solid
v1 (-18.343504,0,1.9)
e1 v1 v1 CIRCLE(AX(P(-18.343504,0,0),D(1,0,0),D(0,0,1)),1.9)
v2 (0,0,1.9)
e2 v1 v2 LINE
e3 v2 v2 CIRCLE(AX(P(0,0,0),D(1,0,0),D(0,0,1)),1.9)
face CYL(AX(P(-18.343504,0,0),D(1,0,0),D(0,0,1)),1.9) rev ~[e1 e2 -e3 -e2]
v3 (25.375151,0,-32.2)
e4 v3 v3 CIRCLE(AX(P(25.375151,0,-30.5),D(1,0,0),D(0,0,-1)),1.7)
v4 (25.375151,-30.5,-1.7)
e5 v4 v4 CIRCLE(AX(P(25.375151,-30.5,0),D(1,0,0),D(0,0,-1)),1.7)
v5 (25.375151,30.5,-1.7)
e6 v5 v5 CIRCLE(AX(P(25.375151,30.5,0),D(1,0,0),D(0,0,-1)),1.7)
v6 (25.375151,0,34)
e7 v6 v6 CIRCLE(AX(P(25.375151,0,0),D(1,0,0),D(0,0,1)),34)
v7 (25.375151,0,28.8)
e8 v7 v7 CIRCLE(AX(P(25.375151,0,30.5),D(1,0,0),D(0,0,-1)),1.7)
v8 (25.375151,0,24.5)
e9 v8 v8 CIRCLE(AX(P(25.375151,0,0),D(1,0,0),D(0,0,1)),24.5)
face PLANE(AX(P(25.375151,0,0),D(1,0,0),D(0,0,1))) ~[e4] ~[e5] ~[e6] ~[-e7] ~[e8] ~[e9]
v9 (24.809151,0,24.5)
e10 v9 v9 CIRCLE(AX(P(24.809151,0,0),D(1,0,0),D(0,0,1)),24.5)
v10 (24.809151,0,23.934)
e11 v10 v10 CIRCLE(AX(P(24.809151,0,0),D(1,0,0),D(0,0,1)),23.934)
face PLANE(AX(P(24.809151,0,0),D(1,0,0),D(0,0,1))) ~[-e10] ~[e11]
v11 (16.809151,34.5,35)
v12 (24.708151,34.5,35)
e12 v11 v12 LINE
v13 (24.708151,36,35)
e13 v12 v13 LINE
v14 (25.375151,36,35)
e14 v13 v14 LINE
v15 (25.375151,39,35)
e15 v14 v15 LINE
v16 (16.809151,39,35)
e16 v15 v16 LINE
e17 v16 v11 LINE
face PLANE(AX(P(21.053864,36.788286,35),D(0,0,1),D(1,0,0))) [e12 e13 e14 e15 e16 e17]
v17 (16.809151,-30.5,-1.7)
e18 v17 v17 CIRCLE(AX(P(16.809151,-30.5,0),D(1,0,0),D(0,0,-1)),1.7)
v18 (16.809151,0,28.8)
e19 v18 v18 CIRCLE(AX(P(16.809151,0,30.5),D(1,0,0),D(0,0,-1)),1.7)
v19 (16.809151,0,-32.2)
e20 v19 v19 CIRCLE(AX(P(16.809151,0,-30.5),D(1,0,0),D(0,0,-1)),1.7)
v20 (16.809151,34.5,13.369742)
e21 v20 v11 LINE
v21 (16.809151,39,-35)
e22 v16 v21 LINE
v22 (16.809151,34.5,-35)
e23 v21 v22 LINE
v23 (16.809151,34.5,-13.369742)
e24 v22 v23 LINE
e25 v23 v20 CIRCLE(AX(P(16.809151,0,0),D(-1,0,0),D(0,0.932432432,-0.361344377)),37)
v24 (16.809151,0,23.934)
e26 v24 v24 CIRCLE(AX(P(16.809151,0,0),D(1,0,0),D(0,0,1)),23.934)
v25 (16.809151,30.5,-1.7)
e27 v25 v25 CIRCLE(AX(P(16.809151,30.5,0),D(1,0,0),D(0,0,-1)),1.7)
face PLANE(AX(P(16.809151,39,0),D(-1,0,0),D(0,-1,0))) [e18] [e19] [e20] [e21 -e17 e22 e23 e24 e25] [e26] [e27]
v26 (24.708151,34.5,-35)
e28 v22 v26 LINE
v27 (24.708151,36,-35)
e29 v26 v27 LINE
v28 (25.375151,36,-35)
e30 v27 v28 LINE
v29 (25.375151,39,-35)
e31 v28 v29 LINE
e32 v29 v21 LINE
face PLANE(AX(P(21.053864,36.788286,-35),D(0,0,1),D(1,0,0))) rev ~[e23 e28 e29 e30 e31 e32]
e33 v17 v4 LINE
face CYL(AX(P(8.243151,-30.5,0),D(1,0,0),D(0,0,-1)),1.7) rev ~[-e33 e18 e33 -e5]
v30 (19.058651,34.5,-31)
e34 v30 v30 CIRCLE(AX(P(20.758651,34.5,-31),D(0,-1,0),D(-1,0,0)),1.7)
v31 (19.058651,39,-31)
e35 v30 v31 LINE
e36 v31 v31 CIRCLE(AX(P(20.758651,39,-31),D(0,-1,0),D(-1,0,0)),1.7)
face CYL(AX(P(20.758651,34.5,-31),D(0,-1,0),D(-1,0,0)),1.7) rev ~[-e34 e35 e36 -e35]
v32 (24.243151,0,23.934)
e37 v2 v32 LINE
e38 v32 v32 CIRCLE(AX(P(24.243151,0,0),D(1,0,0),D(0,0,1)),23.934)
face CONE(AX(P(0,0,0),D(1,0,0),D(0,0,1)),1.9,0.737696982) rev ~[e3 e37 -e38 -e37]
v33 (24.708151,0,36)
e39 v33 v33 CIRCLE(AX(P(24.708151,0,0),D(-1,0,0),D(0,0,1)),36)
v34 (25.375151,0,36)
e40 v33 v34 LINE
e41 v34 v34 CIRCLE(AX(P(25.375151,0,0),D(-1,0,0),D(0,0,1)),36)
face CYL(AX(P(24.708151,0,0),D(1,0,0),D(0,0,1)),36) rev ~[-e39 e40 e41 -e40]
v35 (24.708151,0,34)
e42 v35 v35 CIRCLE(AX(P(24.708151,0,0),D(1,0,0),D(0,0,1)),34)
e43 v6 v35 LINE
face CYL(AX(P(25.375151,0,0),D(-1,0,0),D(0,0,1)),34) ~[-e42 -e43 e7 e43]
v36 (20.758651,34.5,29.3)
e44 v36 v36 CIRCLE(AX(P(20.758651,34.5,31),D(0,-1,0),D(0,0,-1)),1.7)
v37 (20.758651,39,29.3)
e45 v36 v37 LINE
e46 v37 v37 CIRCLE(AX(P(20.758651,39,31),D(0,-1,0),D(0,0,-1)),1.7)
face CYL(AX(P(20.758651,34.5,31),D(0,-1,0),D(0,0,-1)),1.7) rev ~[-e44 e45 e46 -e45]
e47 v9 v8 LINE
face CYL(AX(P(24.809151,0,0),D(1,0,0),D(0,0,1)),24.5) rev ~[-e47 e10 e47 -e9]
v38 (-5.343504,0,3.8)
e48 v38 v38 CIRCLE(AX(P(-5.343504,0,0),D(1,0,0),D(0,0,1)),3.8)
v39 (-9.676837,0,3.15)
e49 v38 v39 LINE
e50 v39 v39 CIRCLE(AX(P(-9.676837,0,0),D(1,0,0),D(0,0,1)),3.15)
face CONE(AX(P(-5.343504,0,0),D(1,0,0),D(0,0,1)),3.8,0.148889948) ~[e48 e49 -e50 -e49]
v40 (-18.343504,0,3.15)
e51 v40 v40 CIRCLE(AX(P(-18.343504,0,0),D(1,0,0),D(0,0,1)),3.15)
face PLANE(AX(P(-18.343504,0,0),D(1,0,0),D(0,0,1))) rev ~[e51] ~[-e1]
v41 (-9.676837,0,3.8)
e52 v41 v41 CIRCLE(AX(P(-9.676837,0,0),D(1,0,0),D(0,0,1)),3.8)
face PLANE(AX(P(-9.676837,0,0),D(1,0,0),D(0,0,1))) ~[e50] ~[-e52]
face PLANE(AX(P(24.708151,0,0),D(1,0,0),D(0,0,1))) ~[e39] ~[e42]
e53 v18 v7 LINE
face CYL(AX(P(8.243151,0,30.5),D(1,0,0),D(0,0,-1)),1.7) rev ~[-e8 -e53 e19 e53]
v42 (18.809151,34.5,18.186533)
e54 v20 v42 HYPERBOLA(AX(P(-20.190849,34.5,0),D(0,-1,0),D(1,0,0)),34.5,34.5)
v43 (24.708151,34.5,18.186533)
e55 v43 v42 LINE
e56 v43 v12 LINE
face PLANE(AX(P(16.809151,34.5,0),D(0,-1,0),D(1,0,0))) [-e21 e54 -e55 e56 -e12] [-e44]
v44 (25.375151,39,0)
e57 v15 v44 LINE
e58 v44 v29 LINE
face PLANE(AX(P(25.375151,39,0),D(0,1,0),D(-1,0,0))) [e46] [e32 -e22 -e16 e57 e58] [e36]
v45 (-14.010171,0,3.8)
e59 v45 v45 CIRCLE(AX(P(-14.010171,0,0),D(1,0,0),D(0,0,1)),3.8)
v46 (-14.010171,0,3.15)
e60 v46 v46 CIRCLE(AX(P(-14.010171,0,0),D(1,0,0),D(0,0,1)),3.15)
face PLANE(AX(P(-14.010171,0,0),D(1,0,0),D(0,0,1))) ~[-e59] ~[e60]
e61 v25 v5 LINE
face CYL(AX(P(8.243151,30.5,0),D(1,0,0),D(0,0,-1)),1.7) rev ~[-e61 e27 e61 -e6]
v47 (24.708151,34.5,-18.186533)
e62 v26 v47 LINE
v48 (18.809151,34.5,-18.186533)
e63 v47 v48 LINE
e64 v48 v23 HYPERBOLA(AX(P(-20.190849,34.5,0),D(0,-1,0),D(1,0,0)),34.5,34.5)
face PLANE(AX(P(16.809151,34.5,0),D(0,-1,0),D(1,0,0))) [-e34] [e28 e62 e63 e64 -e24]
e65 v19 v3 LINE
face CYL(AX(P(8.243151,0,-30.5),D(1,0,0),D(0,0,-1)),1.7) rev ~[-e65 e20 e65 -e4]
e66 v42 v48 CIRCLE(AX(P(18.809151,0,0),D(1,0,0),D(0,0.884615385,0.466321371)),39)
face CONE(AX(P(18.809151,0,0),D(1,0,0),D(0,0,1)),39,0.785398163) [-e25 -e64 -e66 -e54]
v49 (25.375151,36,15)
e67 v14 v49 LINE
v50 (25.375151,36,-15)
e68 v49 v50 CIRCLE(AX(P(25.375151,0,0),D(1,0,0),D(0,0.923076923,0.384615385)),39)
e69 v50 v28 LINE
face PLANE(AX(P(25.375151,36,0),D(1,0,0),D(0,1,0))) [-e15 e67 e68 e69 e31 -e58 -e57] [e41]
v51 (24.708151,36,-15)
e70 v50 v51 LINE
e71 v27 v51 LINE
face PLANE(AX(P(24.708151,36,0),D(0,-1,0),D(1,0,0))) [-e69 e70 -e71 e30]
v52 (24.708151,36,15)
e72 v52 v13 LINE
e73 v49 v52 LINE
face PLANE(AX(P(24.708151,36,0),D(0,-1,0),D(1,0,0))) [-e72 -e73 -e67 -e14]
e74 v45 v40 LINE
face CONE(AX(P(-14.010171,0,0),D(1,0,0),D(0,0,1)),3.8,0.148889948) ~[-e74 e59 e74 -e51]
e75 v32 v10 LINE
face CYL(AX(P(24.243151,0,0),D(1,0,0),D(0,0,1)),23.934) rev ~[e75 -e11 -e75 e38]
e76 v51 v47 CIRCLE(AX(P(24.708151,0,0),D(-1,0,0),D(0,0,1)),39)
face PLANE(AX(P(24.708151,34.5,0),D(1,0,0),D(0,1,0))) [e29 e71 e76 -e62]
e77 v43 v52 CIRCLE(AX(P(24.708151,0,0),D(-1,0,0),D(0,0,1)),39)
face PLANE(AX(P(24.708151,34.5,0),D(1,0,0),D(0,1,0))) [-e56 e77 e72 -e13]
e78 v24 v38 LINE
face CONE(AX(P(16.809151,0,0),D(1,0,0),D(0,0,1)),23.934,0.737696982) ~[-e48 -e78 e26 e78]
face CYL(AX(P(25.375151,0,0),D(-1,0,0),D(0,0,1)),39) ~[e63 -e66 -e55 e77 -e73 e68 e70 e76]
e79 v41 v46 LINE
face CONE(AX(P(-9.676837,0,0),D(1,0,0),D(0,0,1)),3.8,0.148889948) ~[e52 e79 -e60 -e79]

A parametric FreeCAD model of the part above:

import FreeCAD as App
import Part
import Sketcher
from FreeCAD import Vector
Q = App.Units.Quantity


def edges_at(feature, points):
    """Names of the edges that pass closest to the given points."""
    edges = feature.Shape.Edges
    near = lambda p: min(range(len(edges)), key=lambda i: edges[i].distToShape(Part.Vertex(*p))[0])
    return sorted({f"Edge{near(p) + 1}" for p in points})

doc = App.newDocument("Part")
body = doc.addObject("PartDesign::Body", "Body")

sketch1 = body.newObject("Sketcher::SketchObject", "Sketch")
sketch1.AttachmentSupport = (doc.getObject("XY_Plane"), [""])
sketch1.MapMode = "FlatFace"
sketch1.addGeometry([
    Part.LineSegment(Vector(16.8, 39, 0), Vector(16.8, 23.9, 0)),
    Part.LineSegment(Vector(16.8, 23.9, 0), Vector(-5.3, 3.8, 0)),
    Part.LineSegment(Vector(-5.3, 3.8, 0), Vector(-9.7, 3.1, 0)),
    Part.LineSegment(Vector(-9.7, 3.1, 0), Vector(-9.7, 3.8, 0)),
    Part.LineSegment(Vector(-9.7, 3.8, 0), Vector(-14, 3.1, 0)),
    Part.LineSegment(Vector(-14, 3.1, 0), Vector(-14, 3.8, 0)),
    Part.LineSegment(Vector(-14, 3.8, 0), Vector(-18.3, 3.1, 0)),
    Part.LineSegment(Vector(-18.3, 3.1, 0), Vector(-18.3, 1.9, 0)),
    Part.LineSegment(Vector(-18.3, 1.9, 0), Vector(0, 1.9, 0)),
    Part.LineSegment(Vector(0, 1.9, 0), Vector(24.2, 23.9, 0)),
    Part.LineSegment(Vector(24.2, 23.9, 0), Vector(24.8, 23.9, 0)),
    Part.LineSegment(Vector(24.8, 23.9, 0), Vector(24.8, 24.5, 0)),
    Part.LineSegment(Vector(24.8, 24.5, 0), Vector(25.4, 24.5, 0)),
    Part.LineSegment(Vector(25.4, 24.5, 0), Vector(25.4, 34, 0)),
    Part.LineSegment(Vector(25.4, 34, 0), Vector(24.7, 34, 0)),
    Part.LineSegment(Vector(24.7, 34, 0), Vector(24.7, 36, 0)),
    Part.LineSegment(Vector(24.7, 36, 0), Vector(25.4, 36, 0)),
    Part.LineSegment(Vector(25.4, 36, 0), Vector(25.4, 39, 0)),
    Part.LineSegment(Vector(25.4, 39, 0), Vector(16.8, 39, 0)),
], False)
sketch1.addConstraint([
    Sketcher.Constraint("Coincident", 0, 2, 1, 1),
    Sketcher.Constraint("Coincident", 1, 2, 2, 1),
    Sketcher.Constraint("Coincident", 2, 2, 3, 1),
    Sketcher.Constraint("Coincident", 3, 2, 4, 1),
    Sketcher.Constraint("Coincident", 4, 2, 5, 1),
    Sketcher.Constraint("Coincident", 5, 2, 6, 1),
    Sketcher.Constraint("Coincident", 6, 2, 7, 1),
    Sketcher.Constraint("Coincident", 7, 2, 8, 1),
    Sketcher.Constraint("Coincident", 8, 2, 9, 1),
    Sketcher.Constraint("Coincident", 9, 2, 10, 1),
    Sketcher.Constraint("Coincident", 10, 2, 11, 1),
    Sketcher.Constraint("Coincident", 11, 2, 12, 1),
    Sketcher.Constraint("Coincident", 12, 2, 13, 1),
    Sketcher.Constraint("Coincident", 13, 2, 14, 1),
    Sketcher.Constraint("Coincident", 14, 2, 15, 1),
    Sketcher.Constraint("Coincident", 15, 2, 16, 1),
    Sketcher.Constraint("Coincident", 16, 2, 17, 1),
    Sketcher.Constraint("Coincident", 17, 2, 18, 1),
    Sketcher.Constraint("Coincident", 18, 2, 0, 1),
    Sketcher.Constraint("Vertical", 0),
    Sketcher.Constraint("Vertical", 3),
    Sketcher.Constraint("Vertical", 5),
    Sketcher.Constraint("Vertical", 7),
    Sketcher.Constraint("Horizontal", 8),
    Sketcher.Constraint("Horizontal", 10),
    Sketcher.Constraint("Vertical", 11),
    Sketcher.Constraint("Horizontal", 12),
    Sketcher.Constraint("Vertical", 13),
    Sketcher.Constraint("Horizontal", 14),
    Sketcher.Constraint("Vertical", 15),
    Sketcher.Constraint("Horizontal", 16),
    Sketcher.Constraint("Vertical", 17),
    Sketcher.Constraint("Horizontal", 18),
    Sketcher.Constraint("PointOnObject", 8, 2, -2),
    Sketcher.Constraint("Parallel", 2, 4),
    Sketcher.Constraint("Parallel", 4, 6),
    Sketcher.Constraint("Parallel", 1, 9),
    Sketcher.Constraint("Horizontal", 1, 2, 3, 2),
    Sketcher.Constraint("Horizontal", 2, 2, 4, 2),
    Sketcher.Constraint("Horizontal", 3, 2, 5, 2),
    Sketcher.Constraint("Horizontal", 4, 2, 6, 2),
    Sketcher.Constraint("Horizontal", 0, 2, 9, 2),
    Sketcher.Constraint("Vertical", 13, 2, 16, 2),
    Sketcher.Constraint("Equal", 10, 12),
    Sketcher.Constraint("Equal", 12, 11),
    Sketcher.Constraint("DistanceY", 15, 1, 15, 2, Q("2 mm")),
    Sketcher.Constraint("DistanceY", 17, 1, 17, 2, Q("3 mm")),
    Sketcher.Constraint("DistanceY", 13, 1, 13, 2, Q("9.5 mm")),
    Sketcher.Constraint("DistanceY", -1, 1, 13, 2, Q("34 mm")),
    Sketcher.Constraint("DistanceX", 6, 2, 1, 2, Q("13 mm")),
    Sketcher.Constraint("DistanceX", 0, 2, 10, 2, Q("8 mm")),
    Sketcher.Constraint("DistanceY", 3, 1, 3, 2, Q("0.65 mm")),
    Sketcher.Constraint("DistanceY", 7, 2, 7, 1, Q("1.25 mm")),
    Sketcher.Constraint("DistanceY", -1, 1, 1, 2, Q("3.8 mm")),
    Sketcher.Constraint("DistanceX", 10, 1, 10, 2, Q("0.566 mm")),
    Sketcher.Constraint("DistanceX", 14, 2, 14, 1, Q("0.667 mm")),
    Sketcher.Constraint("Distance", 1, Q("29.935231 mm")),
])
revolution = body.newObject("PartDesign::Revolution", "Revolution")
revolution.Profile = sketch1
revolution.ReferenceAxis = (sketch1, ["H_Axis"])
revolution.Angle = 360

sketch2 = body.newObject("Sketcher::SketchObject", "Sketch001")
sketch2.AttachmentSupport = (doc.getObject("YZ_Plane"), [""])
sketch2.MapMode = "FlatFace"
sketch2.AttachmentOffset = App.Placement(Vector(0, 0, 16.809151), App.Rotation())
sketch2.addGeometry([
    Part.Circle(Vector(-30.5, 0, 0), Vector(0, 0, 1), 1.7),
    Part.Circle(Vector(30.5, 0, 0), Vector(0, 0, 1), 1.7),
    Part.Circle(Vector(0, 30.5, 0), Vector(0, 0, 1), 1.7),
    Part.Circle(Vector(0, -30.5, 0), Vector(0, 0, 1), 1.7),
], False)
sketch2.addConstraint([
    Sketcher.Constraint("Equal", 0, 1),
    Sketcher.Constraint("Equal", 1, 2),
    Sketcher.Constraint("Equal", 2, 3),
    Sketcher.Constraint("Symmetric", 0, 3, 1, 3, -1, 1),
    Sketcher.Constraint("Symmetric", 2, 3, 3, 3, -1, 1),
    Sketcher.Constraint("PointOnObject", 0, 3, -1),
    Sketcher.Constraint("PointOnObject", 2, 3, -2),
    Sketcher.Constraint("Diameter", 0, Q("3.4 mm")),
    Sketcher.Constraint("DistanceX", 0, 3, 1, 3, Q("61 mm")),
    Sketcher.Constraint("DistanceY", 3, 3, 2, 3, Q("61 mm")),
])
doc.recompute()
hole = body.newObject("PartDesign::Hole", "Hole")
hole.Profile = sketch2
hole.ThreadType = "None"
hole.Diameter = 3.4
hole.DepthType = "Dimension"
hole.Depth = 8.566
hole.DrillPoint = "Angled"
hole.DrillPointAngle = 118
hole.Reversed = True
doc.recompute()

chamfer = body.newObject("PartDesign::Chamfer", "Chamfer")
chamfer.Base = (hole, edges_at(hole, [(16.809, 0, -39)]))
chamfer.Size = 2

sketch3 = body.newObject("Sketcher::SketchObject", "Sketch002")
sketch3.AttachmentSupport = (doc.getObject("XY_Plane"), [""])
sketch3.MapMode = "FlatFace"
sketch3.addGeometry([
    Part.LineSegment(Vector(16.8, 39, 0), Vector(16.8, 34.5, 0)),
    Part.LineSegment(Vector(16.8, 34.5, 0), Vector(24.7, 34.5, 0)),
    Part.LineSegment(Vector(24.7, 34.5, 0), Vector(24.7, 36, 0)),
    Part.LineSegment(Vector(24.7, 36, 0), Vector(25.4, 36, 0)),
    Part.LineSegment(Vector(25.4, 36, 0), Vector(25.4, 39, 0)),
    Part.LineSegment(Vector(25.4, 39, 0), Vector(16.8, 39, 0)),
], False)
sketch3.addConstraint([
    Sketcher.Constraint("Coincident", 0, 2, 1, 1),
    Sketcher.Constraint("Coincident", 1, 2, 2, 1),
    Sketcher.Constraint("Coincident", 2, 2, 3, 1),
    Sketcher.Constraint("Coincident", 3, 2, 4, 1),
    Sketcher.Constraint("Coincident", 4, 2, 5, 1),
    Sketcher.Constraint("Coincident", 5, 2, 0, 1),
    Sketcher.Constraint("Vertical", 0),
    Sketcher.Constraint("Horizontal", 1),
    Sketcher.Constraint("Vertical", 2),
    Sketcher.Constraint("Horizontal", 3),
    Sketcher.Constraint("Vertical", 4),
    Sketcher.Constraint("Horizontal", 5),
    Sketcher.Constraint("DistanceY", 4, 1, 4, 2, Q("3 mm")),
    Sketcher.Constraint("DistanceY", 0, 2, 0, 1, Q("4.5 mm")),
    Sketcher.Constraint("DistanceY", -1, 1, 2, 2, Q("36 mm")),
    Sketcher.Constraint("DistanceX", 1, 1, 1, 2, Q("7.899 mm")),
    Sketcher.Constraint("DistanceX", 3, 1, 3, 2, Q("0.667 mm")),
    Sketcher.Constraint("DistanceX", -1, 1, 0, 2, Q("16.809151 mm")),
])
pad1 = body.newObject("PartDesign::Pad", "Pad")
pad1.Profile = sketch3
pad1.Length = 70
pad1.Midplane = True

sketch4 = body.newObject("Sketcher::SketchObject", "Sketch003")
sketch4.AttachmentSupport = (doc.getObject("XZ_Plane"), [""])
sketch4.MapMode = "FlatFace"
sketch4.AttachmentOffset = App.Placement(Vector(0, 0, -34.5), App.Rotation())
sketch4.addGeometry([
    Part.Circle(Vector(20.8, 31, 0), Vector(0, 0, 1), 1.7),
    Part.Circle(Vector(20.8, -31, 0), Vector(0, 0, 1), 1.7),
], False)
sketch4.addConstraint([
    Sketcher.Constraint("Equal", 0, 1),
    Sketcher.Constraint("Symmetric", 0, 3, 1, 3, -1),
    Sketcher.Constraint("Diameter", 0, Q("3.4 mm")),
    Sketcher.Constraint("DistanceY", -1, 1, 0, 3, Q("31 mm")),
    Sketcher.Constraint("DistanceX", -1, 1, 0, 3, Q("20.758651 mm")),
])
pocket1 = body.newObject("PartDesign::Pocket", "Pocket")
pocket1.Profile = sketch4
pocket1.Length = 10

doc.recompute()
